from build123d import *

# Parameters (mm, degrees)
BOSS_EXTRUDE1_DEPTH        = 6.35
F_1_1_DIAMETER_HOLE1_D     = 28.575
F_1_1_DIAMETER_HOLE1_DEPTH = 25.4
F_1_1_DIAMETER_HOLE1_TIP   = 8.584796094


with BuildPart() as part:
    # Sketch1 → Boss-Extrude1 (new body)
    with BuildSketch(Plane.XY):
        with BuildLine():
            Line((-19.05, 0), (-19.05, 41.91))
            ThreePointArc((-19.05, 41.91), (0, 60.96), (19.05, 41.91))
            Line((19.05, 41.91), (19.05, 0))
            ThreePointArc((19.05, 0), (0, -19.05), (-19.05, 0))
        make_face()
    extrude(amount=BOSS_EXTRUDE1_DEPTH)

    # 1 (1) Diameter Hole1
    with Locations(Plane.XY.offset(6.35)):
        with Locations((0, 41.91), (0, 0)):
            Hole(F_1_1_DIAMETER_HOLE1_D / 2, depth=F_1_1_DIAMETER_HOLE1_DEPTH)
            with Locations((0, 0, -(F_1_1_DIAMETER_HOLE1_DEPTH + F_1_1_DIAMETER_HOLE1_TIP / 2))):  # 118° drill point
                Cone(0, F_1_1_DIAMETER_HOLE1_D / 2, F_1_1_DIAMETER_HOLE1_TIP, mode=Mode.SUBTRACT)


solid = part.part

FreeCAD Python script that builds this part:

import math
import FreeCAD as App
import Part
import Sketcher

V = App.Vector
Q = App.Units.Quantity

doc = App.newDocument("Part")
body = doc.addObject("PartDesign::Body", "Body")

# Sketch on XY plane
sketch1 = body.newObject("Sketcher::SketchObject", "Sketch")
sketch1.AttachmentSupport = (doc.getObject("XY_Plane"), [""])
sketch1.MapMode = "FlatFace"
sketch1.addGeometry([
    Part.LineSegment(V(-19, 42, 0), V(-19, 0, 0)),
    Part.ArcOfCircle(Part.Circle(V(0, 0, 0), V(0, 0, 1), 19), math.radians(180), math.radians(360)),
    Part.LineSegment(V(19, 0, 0), V(19, 42, 0)),
    Part.ArcOfCircle(Part.Circle(V(0, 42, 0), V(0, 0, 1), 19), math.radians(0), math.radians(180)),
], False)
sketch1.addConstraint([
    Sketcher.Constraint("Tangent", 0, 2, 1, 1),
    Sketcher.Constraint("Tangent", 1, 2, 2, 1),
    Sketcher.Constraint("Tangent", 2, 2, 3, 1),
    Sketcher.Constraint("Tangent", 3, 2, 0, 1),
    Sketcher.Constraint("Vertical", 0),
    Sketcher.Constraint("Vertical", 2),
    Sketcher.Constraint("Coincident", 1, 3, -1, 1),
    Sketcher.Constraint("Radius", 1, Q("0.75 in")),
    Sketcher.Constraint("DistanceY", 0, 2, 0, 1, Q("1.65 in")),
])
pad1 = body.newObject("PartDesign::Pad", "Pad")
pad1.Profile = sketch1
pad1.Length = Q("0.25 in")

# Sketch on XY plane
sketch2 = body.newObject("Sketcher::SketchObject", "Sketch001")
sketch2.AttachmentSupport = (doc.getObject("XY_Plane"), [""])
sketch2.MapMode = "FlatFace"
sketch2.AttachmentOffset = App.Placement(V(0, 0, 0.25 * 25.4), App.Rotation())
sketch2.addGeometry([
    Part.Circle(V(0, 42, 0), V(0, 0, 1), 14),
    Part.Circle(V(0, 0, 0), V(0, 0, 1), 14),
], False)
sketch2.addConstraint([
    Sketcher.Constraint("Coincident", 1, 3, -1, 1),
    Sketcher.Constraint("Equal", 0, 1),
    Sketcher.Constraint("PointOnObject", 0, 3, -2),
    Sketcher.Constraint("Diameter", 0, Q("1.125 in")),
    Sketcher.Constraint("DistanceY", -1, 1, 0, 3, Q("1.65 in")),
])
doc.recompute()
hole = body.newObject("PartDesign::Hole", "Hole")
hole.Profile = sketch2
hole.ThreadType = "None"
hole.Diameter = Q("1.125 in")
hole.DepthType = "Dimension"
hole.Depth = Q("1 in")
hole.DrillPoint = "Angled"
hole.DrillPointAngle = 118

doc.recompute()
